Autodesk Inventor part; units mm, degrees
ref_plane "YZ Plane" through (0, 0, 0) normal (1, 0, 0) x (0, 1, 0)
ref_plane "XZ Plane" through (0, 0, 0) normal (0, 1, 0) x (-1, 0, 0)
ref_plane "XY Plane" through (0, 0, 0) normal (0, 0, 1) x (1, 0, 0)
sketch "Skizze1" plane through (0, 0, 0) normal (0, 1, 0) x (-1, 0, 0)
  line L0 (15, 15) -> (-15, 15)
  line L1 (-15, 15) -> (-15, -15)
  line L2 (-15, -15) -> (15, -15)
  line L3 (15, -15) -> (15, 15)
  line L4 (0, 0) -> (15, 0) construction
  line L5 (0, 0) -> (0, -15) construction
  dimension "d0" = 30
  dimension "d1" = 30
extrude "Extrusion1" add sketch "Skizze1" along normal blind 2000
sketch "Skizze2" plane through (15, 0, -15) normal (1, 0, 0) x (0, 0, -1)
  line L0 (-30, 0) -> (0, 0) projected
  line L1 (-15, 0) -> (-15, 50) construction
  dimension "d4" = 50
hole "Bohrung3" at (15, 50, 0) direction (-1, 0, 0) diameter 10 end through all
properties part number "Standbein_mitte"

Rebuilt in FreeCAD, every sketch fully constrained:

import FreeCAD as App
import Part
import Sketcher

V = App.Vector
Q = App.Units.Quantity

doc = App.newDocument("Part")
body = doc.addObject("PartDesign::Body", "Body")

sketch1 = doc.addObject("Sketcher::SketchObject", "Sketch")
body.addObject(sketch1)
sketch1.AttachmentSupport = (doc.XZ_Plane, [""])
sketch1.MapMode = "FlatFace"
sketch1.addGeometry([
    Part.LineSegment(V(-15, -15, 0), V(-15, 15, 0)),
    Part.LineSegment(V(-15, 15, 0), V(15, 15, 0)),
    Part.LineSegment(V(15, 15, 0), V(15, -15, 0)),
    Part.LineSegment(V(15, -15, 0), V(-15, -15, 0)),
], False)
sketch1.addConstraint([
    Sketcher.Constraint("Coincident", 0, 2, 1, 1),
    Sketcher.Constraint("Coincident", 1, 2, 2, 1),
    Sketcher.Constraint("Coincident", 2, 2, 3, 1),
    Sketcher.Constraint("Coincident", 3, 2, 0, 1),
    Sketcher.Constraint("Vertical", 0),
    Sketcher.Constraint("Horizontal", 1),
    Sketcher.Constraint("Vertical", 2),
    Sketcher.Constraint("Horizontal", 3),
    Sketcher.Constraint("Symmetric", 0, 2, 2, 2, -1, 1),
    Sketcher.Constraint("Equal", 3, 0),
    Sketcher.Constraint("DistanceX", 1, 1, 1, 2, Q("30 mm")),
])
pad1 = doc.addObject("PartDesign::Pad", "Pad")
body.addObject(pad1)
pad1.Profile = sketch1
pad1.Length = 2000
pad1.Reversed = True

sketch2 = doc.addObject("Sketcher::SketchObject", "Sketch001")
body.addObject(sketch2)
sketch2.AttachmentSupport = (doc.YZ_Plane, [""])
sketch2.MapMode = "FlatFace"
sketch2.AttachmentOffset = App.Placement(V(0, 0, 15), App.Rotation())
sketch2.addGeometry(Part.Circle(V(50, 0, 0), V(0, 0, 1), 5), False)
sketch2.addConstraint([
    Sketcher.Constraint("PointOnObject", 0, 3, -1),
    Sketcher.Constraint("Diameter", 0, Q("10 mm")),
    Sketcher.Constraint("DistanceX", -1, 1, 0, 3, Q("50 mm")),
])
doc.recompute()
hole = doc.addObject("PartDesign::Hole", "Hole")
body.addObject(hole)
hole.Profile = sketch2
hole.ThreadType = "None"
hole.Diameter = 10
hole.DepthType = "ThroughAll"

doc.recompute()
